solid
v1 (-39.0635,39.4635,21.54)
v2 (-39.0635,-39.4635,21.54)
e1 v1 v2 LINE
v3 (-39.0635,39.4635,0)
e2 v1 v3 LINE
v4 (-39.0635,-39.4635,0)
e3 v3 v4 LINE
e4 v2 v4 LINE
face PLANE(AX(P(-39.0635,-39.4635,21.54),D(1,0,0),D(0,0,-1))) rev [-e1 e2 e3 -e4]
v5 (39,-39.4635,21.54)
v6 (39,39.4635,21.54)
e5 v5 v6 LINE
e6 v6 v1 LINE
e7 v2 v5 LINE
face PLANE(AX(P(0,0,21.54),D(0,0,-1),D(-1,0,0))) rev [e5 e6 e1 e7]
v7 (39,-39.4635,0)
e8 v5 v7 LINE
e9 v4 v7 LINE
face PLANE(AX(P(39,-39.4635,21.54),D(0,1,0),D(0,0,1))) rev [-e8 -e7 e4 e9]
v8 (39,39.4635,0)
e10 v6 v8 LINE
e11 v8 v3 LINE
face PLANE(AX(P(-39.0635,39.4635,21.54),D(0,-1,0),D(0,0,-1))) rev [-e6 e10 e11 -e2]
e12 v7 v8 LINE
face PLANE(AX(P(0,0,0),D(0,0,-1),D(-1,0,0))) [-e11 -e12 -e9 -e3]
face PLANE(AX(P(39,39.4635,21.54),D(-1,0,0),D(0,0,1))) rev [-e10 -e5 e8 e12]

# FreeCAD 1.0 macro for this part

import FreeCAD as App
import Part
import Sketcher
from FreeCAD import Vector

doc = App.newDocument("Part")
body = doc.addObject("PartDesign::Body", "Body")

# Sketch on XY plane
sketch1 = body.newObject("Sketcher::SketchObject", "Sketch")
sketch1.AttachmentSupport = (doc.getObject("XY_Plane"), [""])
sketch1.MapMode = "FlatFace"
sketch1.addGeometry(Part.LineSegment(Vector(-39, 39, 0), Vector(-39, -39, 0)), False)
sketch1.addGeometry(Part.LineSegment(Vector(-39, -39, 0), Vector(39, -39, 0)), False)
sketch1.addGeometry(Part.LineSegment(Vector(39, -39, 0), Vector(39, 39, 0)), False)
sketch1.addGeometry(Part.LineSegment(Vector(39, 39, 0), Vector(-39, 39, 0)), False)
sketch1.addConstraint(Sketcher.Constraint("Coincident", 0, 2, 1, 1))
sketch1.addConstraint(Sketcher.Constraint("Coincident", 1, 2, 2, 1))
sketch1.addConstraint(Sketcher.Constraint("Coincident", 2, 2, 3, 1))
sketch1.addConstraint(Sketcher.Constraint("Coincident", 3, 2, 0, 1))
sketch1.addConstraint(Sketcher.Constraint("Vertical", 0))
sketch1.addConstraint(Sketcher.Constraint("Horizontal", 1))
sketch1.addConstraint(Sketcher.Constraint("Vertical", 2))
sketch1.addConstraint(Sketcher.Constraint("Horizontal", 3))
sketch1.addConstraint(Sketcher.Constraint("DistanceX", -1, 1, 1, 2, 39.0))
sketch1.addConstraint(Sketcher.Constraint("DistanceY", 0, 2, 0, 1, 78.927))
sketch1.addConstraint(Sketcher.Constraint("DistanceX", 1, 1, 1, 2, 78.0635))
sketch1.addConstraint(Sketcher.Constraint("DistanceY", 0, 2, -1, 1, 39.4635))
pad1 = body.newObject("PartDesign::Pad", "Pad")
pad1.Profile = sketch1
pad1.Length = 21.54

doc.recompute()
